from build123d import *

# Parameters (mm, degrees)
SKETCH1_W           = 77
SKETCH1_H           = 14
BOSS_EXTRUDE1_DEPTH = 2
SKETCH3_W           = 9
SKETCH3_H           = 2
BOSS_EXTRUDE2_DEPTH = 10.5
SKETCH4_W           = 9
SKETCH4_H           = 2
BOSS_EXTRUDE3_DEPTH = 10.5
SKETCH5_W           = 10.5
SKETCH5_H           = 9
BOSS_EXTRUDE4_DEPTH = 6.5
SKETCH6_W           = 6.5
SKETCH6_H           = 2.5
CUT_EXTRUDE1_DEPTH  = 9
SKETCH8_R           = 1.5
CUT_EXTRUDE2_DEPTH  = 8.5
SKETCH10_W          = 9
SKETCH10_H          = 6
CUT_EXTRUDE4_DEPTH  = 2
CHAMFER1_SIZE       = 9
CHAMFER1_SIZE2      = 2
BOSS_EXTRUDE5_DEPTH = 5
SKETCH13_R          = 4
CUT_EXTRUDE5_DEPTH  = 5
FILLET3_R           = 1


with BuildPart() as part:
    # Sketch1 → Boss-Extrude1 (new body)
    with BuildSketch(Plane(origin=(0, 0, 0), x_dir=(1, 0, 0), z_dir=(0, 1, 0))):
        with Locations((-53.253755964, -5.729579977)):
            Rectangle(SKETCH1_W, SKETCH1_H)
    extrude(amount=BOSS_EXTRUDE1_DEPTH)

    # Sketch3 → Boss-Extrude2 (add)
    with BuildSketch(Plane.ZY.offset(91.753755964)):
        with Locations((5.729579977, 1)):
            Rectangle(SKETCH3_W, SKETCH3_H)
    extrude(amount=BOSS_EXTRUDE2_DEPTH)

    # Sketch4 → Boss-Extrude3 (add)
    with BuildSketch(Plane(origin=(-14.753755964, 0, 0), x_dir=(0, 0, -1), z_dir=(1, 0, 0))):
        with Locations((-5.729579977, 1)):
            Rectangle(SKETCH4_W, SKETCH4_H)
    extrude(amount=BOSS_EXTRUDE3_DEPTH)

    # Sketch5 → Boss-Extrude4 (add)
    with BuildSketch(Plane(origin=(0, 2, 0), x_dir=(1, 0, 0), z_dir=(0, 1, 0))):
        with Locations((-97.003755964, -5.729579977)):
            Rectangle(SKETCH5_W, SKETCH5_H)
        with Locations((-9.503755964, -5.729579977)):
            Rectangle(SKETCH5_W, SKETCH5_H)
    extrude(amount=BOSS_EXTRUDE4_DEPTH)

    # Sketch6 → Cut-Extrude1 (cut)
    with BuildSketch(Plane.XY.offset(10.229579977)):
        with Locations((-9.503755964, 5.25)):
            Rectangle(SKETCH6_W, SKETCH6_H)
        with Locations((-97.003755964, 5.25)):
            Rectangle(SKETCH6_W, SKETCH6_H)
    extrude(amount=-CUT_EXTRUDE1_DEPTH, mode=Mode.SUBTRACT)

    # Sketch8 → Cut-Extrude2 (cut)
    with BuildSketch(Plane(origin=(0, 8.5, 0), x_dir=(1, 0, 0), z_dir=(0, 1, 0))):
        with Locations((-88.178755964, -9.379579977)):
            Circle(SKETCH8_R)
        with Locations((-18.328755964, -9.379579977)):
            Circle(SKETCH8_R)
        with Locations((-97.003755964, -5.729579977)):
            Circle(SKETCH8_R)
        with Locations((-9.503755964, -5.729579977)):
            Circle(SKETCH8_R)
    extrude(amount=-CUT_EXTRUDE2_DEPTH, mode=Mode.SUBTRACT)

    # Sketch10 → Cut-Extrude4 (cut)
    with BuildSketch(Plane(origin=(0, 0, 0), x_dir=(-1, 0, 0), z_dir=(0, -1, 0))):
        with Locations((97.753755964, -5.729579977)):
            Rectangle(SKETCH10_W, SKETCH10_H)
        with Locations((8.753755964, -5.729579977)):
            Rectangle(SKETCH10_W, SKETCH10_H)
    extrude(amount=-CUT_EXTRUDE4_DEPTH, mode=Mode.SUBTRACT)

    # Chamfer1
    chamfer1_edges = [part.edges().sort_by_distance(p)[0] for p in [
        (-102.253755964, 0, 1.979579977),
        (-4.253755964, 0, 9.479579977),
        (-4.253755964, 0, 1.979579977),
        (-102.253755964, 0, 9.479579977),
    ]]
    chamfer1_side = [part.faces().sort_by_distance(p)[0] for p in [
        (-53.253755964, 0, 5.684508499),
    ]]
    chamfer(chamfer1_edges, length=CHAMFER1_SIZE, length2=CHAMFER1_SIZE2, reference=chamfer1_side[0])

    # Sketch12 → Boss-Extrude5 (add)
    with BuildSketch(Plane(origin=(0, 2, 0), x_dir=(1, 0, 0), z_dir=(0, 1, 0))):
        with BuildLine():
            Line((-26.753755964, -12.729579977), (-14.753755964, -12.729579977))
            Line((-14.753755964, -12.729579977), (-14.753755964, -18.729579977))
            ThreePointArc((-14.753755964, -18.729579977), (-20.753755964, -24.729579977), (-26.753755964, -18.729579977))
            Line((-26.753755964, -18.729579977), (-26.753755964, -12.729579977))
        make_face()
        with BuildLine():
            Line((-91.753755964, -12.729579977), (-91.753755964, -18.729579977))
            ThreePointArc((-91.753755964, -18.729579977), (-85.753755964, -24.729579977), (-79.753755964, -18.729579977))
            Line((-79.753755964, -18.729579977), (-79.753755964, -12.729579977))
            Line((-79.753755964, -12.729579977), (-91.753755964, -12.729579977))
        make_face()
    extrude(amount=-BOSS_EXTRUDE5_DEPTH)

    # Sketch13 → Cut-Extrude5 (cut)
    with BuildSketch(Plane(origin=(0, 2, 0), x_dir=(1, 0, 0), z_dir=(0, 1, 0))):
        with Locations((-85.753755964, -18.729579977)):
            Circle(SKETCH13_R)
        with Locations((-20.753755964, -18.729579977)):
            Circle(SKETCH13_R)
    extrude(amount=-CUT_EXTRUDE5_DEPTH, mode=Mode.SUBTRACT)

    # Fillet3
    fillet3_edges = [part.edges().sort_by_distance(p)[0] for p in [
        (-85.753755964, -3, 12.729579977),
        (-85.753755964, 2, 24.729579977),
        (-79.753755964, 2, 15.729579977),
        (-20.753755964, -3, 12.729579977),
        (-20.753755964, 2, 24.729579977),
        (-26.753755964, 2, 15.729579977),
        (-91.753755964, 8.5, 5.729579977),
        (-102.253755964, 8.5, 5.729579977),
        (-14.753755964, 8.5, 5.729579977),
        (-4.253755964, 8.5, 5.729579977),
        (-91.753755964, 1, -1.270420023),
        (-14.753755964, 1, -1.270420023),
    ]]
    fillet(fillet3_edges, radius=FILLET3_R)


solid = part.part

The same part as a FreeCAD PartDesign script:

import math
import FreeCAD as App
import Part
import Sketcher
from FreeCAD import Vector
Q = App.Units.Quantity


def edges_at(feature, points):
    """Names of the edges that pass closest to the given points."""
    edges = feature.Shape.Edges
    near = lambda p: min(range(len(edges)), key=lambda i: edges[i].distToShape(Part.Vertex(*p))[0])
    return sorted({f"Edge{near(p) + 1}" for p in points})

doc = App.newDocument("Part")
body = doc.addObject("PartDesign::Body", "Body")

sketch1 = body.newObject("Sketcher::SketchObject", "Sketch")
sketch1.AttachmentSupport = (doc.getObject("XZ_Plane"), [""])
sketch1.MapMode = "FlatFace"
sketch1.addGeometry([
    Part.LineSegment(Vector(-92, -1, 0), Vector(-92, 13, 0)),
    Part.LineSegment(Vector(-92, 13, 0), Vector(-15, 13, 0)),
    Part.LineSegment(Vector(-15, 13, 0), Vector(-15, -1, 0)),
    Part.LineSegment(Vector(-15, -1, 0), Vector(-92, -1, 0)),
], False)
sketch1.addConstraint([
    Sketcher.Constraint("Coincident", 0, 2, 1, 1),
    Sketcher.Constraint("Coincident", 1, 2, 2, 1),
    Sketcher.Constraint("Coincident", 2, 2, 3, 1),
    Sketcher.Constraint("Coincident", 3, 2, 0, 1),
    Sketcher.Constraint("Vertical", 0),
    Sketcher.Constraint("Horizontal", 1),
    Sketcher.Constraint("Vertical", 2),
    Sketcher.Constraint("Horizontal", 3),
    Sketcher.Constraint("DistanceX", 1, 1, 1, 2, Q("77 mm")),
    Sketcher.Constraint("DistanceY", 0, 1, 0, 2, Q("14 mm")),
    Sketcher.Constraint("DistanceY", -1, 1, 0, 2, Q("12.72958 mm")),
    Sketcher.Constraint("DistanceX", 0, 2, -1, 1, Q("91.753756 mm")),
])
pad1 = body.newObject("PartDesign::Pad", "Pad")
pad1.Profile = sketch1
pad1.Length = 2
pad1.Reversed = True

sketch2 = body.newObject("Sketcher::SketchObject", "Sketch001")
sketch2.AttachmentSupport = (doc.getObject("YZ_Plane"), [""])
sketch2.MapMode = "FlatFace"
sketch2.AttachmentOffset = App.Placement(Vector(0, 0, -91.753756), App.Rotation())
sketch2.addGeometry([
    Part.LineSegment(Vector(2, 1.2, 0), Vector(0, 1.2, 0)),
    Part.LineSegment(Vector(0, 1.2, 0), Vector(0, 10.2, 0)),
    Part.LineSegment(Vector(0, 10.2, 0), Vector(2, 10.2, 0)),
    Part.LineSegment(Vector(2, 10.2, 0), Vector(2, 1.2, 0)),
], False)
sketch2.addConstraint([
    Sketcher.Constraint("Coincident", 0, 2, 1, 1),
    Sketcher.Constraint("Coincident", 1, 2, 2, 1),
    Sketcher.Constraint("Coincident", 2, 2, 3, 1),
    Sketcher.Constraint("Coincident", 3, 2, 0, 1),
    Sketcher.Constraint("Horizontal", 0),
    Sketcher.Constraint("Vertical", 1),
    Sketcher.Constraint("Horizontal", 2),
    Sketcher.Constraint("Vertical", 3),
    Sketcher.Constraint("PointOnObject", 0, 2, -2),
    Sketcher.Constraint("DistanceX", 0, 2, 0, 1, Q("2 mm")),
    Sketcher.Constraint("DistanceY", 1, 1, 1, 2, Q("9 mm")),
    Sketcher.Constraint("DistanceY", -1, 1, 0, 2, Q("1.22958 mm")),
])
pad2 = body.newObject("PartDesign::Pad", "Pad001")
pad2.Profile = sketch2
pad2.Length = 10.5
pad2.Reversed = True

sketch3 = body.newObject("Sketcher::SketchObject", "Sketch002")
sketch3.AttachmentSupport = (doc.getObject("YZ_Plane"), [""])
sketch3.MapMode = "FlatFace"
sketch3.AttachmentOffset = App.Placement(Vector(0, 0, -14.753756), App.Rotation())
sketch3.addGeometry([
    Part.LineSegment(Vector(2, 10.2, 0), Vector(0, 10.2, 0)),
    Part.LineSegment(Vector(0, 10.2, 0), Vector(0, 1.2, 0)),
    Part.LineSegment(Vector(0, 1.2, 0), Vector(2, 1.2, 0)),
    Part.LineSegment(Vector(2, 1.2, 0), Vector(2, 10.2, 0)),
], False)
sketch3.addConstraint([
    Sketcher.Constraint("Coincident", 0, 2, 1, 1),
    Sketcher.Constraint("Coincident", 1, 2, 2, 1),
    Sketcher.Constraint("Coincident", 2, 2, 3, 1),
    Sketcher.Constraint("Coincident", 3, 2, 0, 1),
    Sketcher.Constraint("Horizontal", 0),
    Sketcher.Constraint("Vertical", 1),
    Sketcher.Constraint("Horizontal", 2),
    Sketcher.Constraint("Vertical", 3),
    Sketcher.Constraint("PointOnObject", 0, 2, -2),
    Sketcher.Constraint("DistanceX", 0, 2, 0, 1, Q("2 mm")),
    Sketcher.Constraint("DistanceY", 1, 2, 1, 1, Q("9 mm")),
    Sketcher.Constraint("DistanceY", -1, 1, 0, 2, Q("10.22958 mm")),
])
pad3 = body.newObject("PartDesign::Pad", "Pad002")
pad3.Profile = sketch3
pad3.Length = 10.5

sketch4 = body.newObject("Sketcher::SketchObject", "Sketch003")
sketch4.AttachmentSupport = (doc.getObject("XZ_Plane"), [""])
sketch4.MapMode = "FlatFace"
sketch4.AttachmentOffset = App.Placement(Vector(0, 0, -2), App.Rotation())
sketch4.addGeometry([
    Part.LineSegment(Vector(-102, 1, 0), Vector(-102, 10, 0)),
    Part.LineSegment(Vector(-102, 10, 0), Vector(-92, 10, 0)),
    Part.LineSegment(Vector(-92, 10, 0), Vector(-92, 1, 0)),
    Part.LineSegment(Vector(-92, 1, 0), Vector(-102, 1, 0)),
    Part.LineSegment(Vector(-15, 1, 0), Vector(-15, 10, 0)),
    Part.LineSegment(Vector(-15, 10, 0), Vector(-4, 10, 0)),
    Part.LineSegment(Vector(-4, 10, 0), Vector(-4, 1, 0)),
    Part.LineSegment(Vector(-4, 1, 0), Vector(-15, 1, 0)),
], False)
sketch4.addConstraint([
    Sketcher.Constraint("Coincident", 0, 2, 1, 1),
    Sketcher.Constraint("Coincident", 1, 2, 2, 1),
    Sketcher.Constraint("Coincident", 2, 2, 3, 1),
    Sketcher.Constraint("Coincident", 3, 2, 0, 1),
    Sketcher.Constraint("Coincident", 4, 2, 5, 1),
    Sketcher.Constraint("Coincident", 5, 2, 6, 1),
    Sketcher.Constraint("Coincident", 6, 2, 7, 1),
    Sketcher.Constraint("Coincident", 7, 2, 4, 1),
    Sketcher.Constraint("Vertical", 0),
    Sketcher.Constraint("Horizontal", 1),
    Sketcher.Constraint("Vertical", 2),
    Sketcher.Constraint("Horizontal", 3),
    Sketcher.Constraint("Vertical", 4),
    Sketcher.Constraint("Horizontal", 5),
    Sketcher.Constraint("Vertical", 6),
    Sketcher.Constraint("Horizontal", 7),
    Sketcher.Constraint("Horizontal", 1, 2, 4, 2),
    Sketcher.Constraint("Horizontal", 3, 2, 6, 2),
    Sketcher.Constraint("Equal", 3, 5),
    Sketcher.Constraint("DistanceY", 0, 1, 0, 2, Q("9 mm")),
    Sketcher.Constraint("DistanceX", 1, 1, 1, 2, Q("10.5 mm")),
    Sketcher.Constraint("DistanceX", 1, 2, 4, 2, Q("77 mm")),
    Sketcher.Constraint("DistanceY", -1, 1, 0, 2, Q("10.22958 mm")),
    Sketcher.Constraint("DistanceX", 0, 2, -1, 1, Q("102.253756 mm")),
])
pad4 = body.newObject("PartDesign::Pad", "Pad003")
pad4.Profile = sketch4
pad4.Length = 6.5
pad4.Reversed = True

sketch5 = body.newObject("Sketcher::SketchObject", "Sketch004")
sketch5.AttachmentSupport = (doc.getObject("XY_Plane"), [""])
sketch5.MapMode = "FlatFace"
sketch5.AttachmentOffset = App.Placement(Vector(0, 0, 10.22958), App.Rotation())
sketch5.addGeometry([
    Part.LineSegment(Vector(-12.8, 6.5, 0), Vector(-12.8, 4, 0)),
    Part.LineSegment(Vector(-12.8, 4, 0), Vector(-6.3, 4, 0)),
    Part.LineSegment(Vector(-6.3, 4, 0), Vector(-6.3, 6.5, 0)),
    Part.LineSegment(Vector(-6.3, 6.5, 0), Vector(-12.8, 6.5, 0)),
    Part.LineSegment(Vector(-100.3, 6.5, 0), Vector(-100.3, 4, 0)),
    Part.LineSegment(Vector(-100.3, 4, 0), Vector(-93.8, 4, 0)),
    Part.LineSegment(Vector(-93.8, 4, 0), Vector(-93.8, 6.5, 0)),
    Part.LineSegment(Vector(-93.8, 6.5, 0), Vector(-100.3, 6.5, 0)),
], False)
sketch5.addConstraint([
    Sketcher.Constraint("Coincident", 0, 2, 1, 1),
    Sketcher.Constraint("Coincident", 1, 2, 2, 1),
    Sketcher.Constraint("Coincident", 2, 2, 3, 1),
    Sketcher.Constraint("Coincident", 3, 2, 0, 1),
    Sketcher.Constraint("Coincident", 4, 2, 5, 1),
    Sketcher.Constraint("Coincident", 5, 2, 6, 1),
    Sketcher.Constraint("Coincident", 6, 2, 7, 1),
    Sketcher.Constraint("Coincident", 7, 2, 4, 1),
    Sketcher.Constraint("Vertical", 0),
    Sketcher.Constraint("Horizontal", 1),
    Sketcher.Constraint("Vertical", 2),
    Sketcher.Constraint("Horizontal", 3),
    Sketcher.Constraint("Vertical", 4),
    Sketcher.Constraint("Horizontal", 5),
    Sketcher.Constraint("Vertical", 6),
    Sketcher.Constraint("Horizontal", 7),
    Sketcher.Constraint("Horizontal", 1, 2, 4, 2),
    Sketcher.Constraint("Horizontal", 3, 2, 6, 2),
    Sketcher.Constraint("Equal", 3, 5),
    Sketcher.Constraint("DistanceX", 1, 1, 1, 2, Q("6.5 mm")),
    Sketcher.Constraint("DistanceY", 0, 2, 0, 1, Q("2.5 mm")),
    Sketcher.Constraint("DistanceY", -1, 1, 0, 2, Q("4 mm")),
    Sketcher.Constraint("DistanceX", 4, 2, 1, 2, Q("94 mm")),
    Sketcher.Constraint("DistanceX", 0, 2, -1, 1, Q("12.753756 mm")),
])
pocket1 = body.newObject("PartDesign::Pocket", "Pocket")
pocket1.Profile = sketch5
pocket1.Length = 9

sketch6 = body.newObject("Sketcher::SketchObject", "Sketch005")
sketch6.AttachmentSupport = (doc.getObject("XZ_Plane"), [""])
sketch6.MapMode = "FlatFace"
sketch6.AttachmentOffset = App.Placement(Vector(0, 0, -8.5), App.Rotation())
sketch6.addGeometry([
    Part.Circle(Vector(-88.2, 9.4, 0), Vector(0, 0, 1), 1.5),
    Part.Circle(Vector(-18.3, 9.4, 0), Vector(0, 0, 1), 1.5),
    Part.Circle(Vector(-97, 5.7, 0), Vector(0, 0, 1), 1.5),
    Part.Circle(Vector(-9.5, 5.7, 0), Vector(0, 0, 1), 1.5),
], False)
sketch6.addConstraint([
    Sketcher.Constraint("Equal", 0, 1),
    Sketcher.Constraint("Equal", 1, 2),
    Sketcher.Constraint("Equal", 2, 3),
    Sketcher.Constraint("Horizontal", 0, 3, 1, 3),
    Sketcher.Constraint("Horizontal", 2, 3, 3, 3),
    Sketcher.Constraint("Diameter", 0, Q("3 mm")),
    Sketcher.Constraint("DistanceX", 2, 3, 3, 3, Q("87.5 mm")),
    Sketcher.Constraint("DistanceX", 0, 3, 1, 3, Q("69.85 mm")),
    Sketcher.Constraint("DistanceY", 2, 3, 0, 3, Q("3.65 mm")),
    Sketcher.Constraint("DistanceX", 2, 3, 0, 3, Q("8.825 mm")),
    Sketcher.Constraint("DistanceY", -1, 1, 0, 3, Q("9.37958 mm")),
    Sketcher.Constraint("DistanceX", 0, 3, -1, 1, Q("88.178756 mm")),
])
pocket2 = body.newObject("PartDesign::Pocket", "Pocket001")
pocket2.Profile = sketch6
pocket2.Length = 8.5
pocket2.Reversed = True

sketch7 = body.newObject("Sketcher::SketchObject", "Sketch006")
sketch7.AttachmentSupport = (doc.getObject("XZ_Plane"), [""])
sketch7.MapMode = "FlatFace"
sketch7.addGeometry([
    Part.LineSegment(Vector(-93, 3, 0), Vector(-93, 9, 0)),
    Part.LineSegment(Vector(-93, 9, 0), Vector(-102, 9, 0)),
    Part.LineSegment(Vector(-102, 9, 0), Vector(-102, 3, 0)),
    Part.LineSegment(Vector(-102, 3, 0), Vector(-93, 3, 0)),
    Part.LineSegment(Vector(-4, 3, 0), Vector(-4, 9, 0)),
    Part.LineSegment(Vector(-4, 9, 0), Vector(-13, 9, 0)),
    Part.LineSegment(Vector(-13, 9, 0), Vector(-13, 3, 0)),
    Part.LineSegment(Vector(-13, 3, 0), Vector(-4, 3, 0)),
], False)
sketch7.addConstraint([
    Sketcher.Constraint("Coincident", 0, 2, 1, 1),
    Sketcher.Constraint("Coincident", 1, 2, 2, 1),
    Sketcher.Constraint("Coincident", 2, 2, 3, 1),
    Sketcher.Constraint("Coincident", 3, 2, 0, 1),
    Sketcher.Constraint("Coincident", 4, 2, 5, 1),
    Sketcher.Constraint("Coincident", 5, 2, 6, 1),
    Sketcher.Constraint("Coincident", 6, 2, 7, 1),
    Sketcher.Constraint("Coincident", 7, 2, 4, 1),
    Sketcher.Constraint("Vertical", 0),
    Sketcher.Constraint("Horizontal", 1),
    Sketcher.Constraint("Vertical", 2),
    Sketcher.Constraint("Horizontal", 3),
    Sketcher.Constraint("Vertical", 4),
    Sketcher.Constraint("Horizontal", 5),
    Sketcher.Constraint("Vertical", 6),
    Sketcher.Constraint("Horizontal", 7),
    Sketcher.Constraint("Horizontal", 1, 2, 4, 2),
    Sketcher.Constraint("Horizontal", 3, 2, 6, 2),
    Sketcher.Constraint("Equal", 3, 5),
    Sketcher.Constraint("DistanceX", 1, 2, 1, 1, Q("9 mm")),
    Sketcher.Constraint("DistanceY", 0, 1, 0, 2, Q("6 mm")),
    Sketcher.Constraint("DistanceX", 0, 2, 4, 2, Q("89 mm")),
    Sketcher.Constraint("DistanceY", -1, 1, 0, 2, Q("8.72958 mm")),
    Sketcher.Constraint("DistanceX", 0, 2, -1, 1, Q("93.253756 mm")),
])
pocket3 = body.newObject("PartDesign::Pocket", "Pocket002")
pocket3.Profile = sketch7
pocket3.Length = 2
doc.recompute()

chamfer = body.newObject("PartDesign::Chamfer", "Chamfer")
chamfer.Base = (pocket3, edges_at(pocket3, [
    (-102.254, 0, 1.98),
    (-4.254, 0, 9.48),
    (-4.254, 0, 1.98),
    (-102.254, 0, 9.48),
]))
chamfer.ChamferType = "Two distances"
chamfer.Size = 9
chamfer.Size2 = 2

sketch8 = body.newObject("Sketcher::SketchObject", "Sketch007")
sketch8.AttachmentSupport = (doc.getObject("XZ_Plane"), [""])
sketch8.MapMode = "FlatFace"
sketch8.AttachmentOffset = App.Placement(Vector(0, 0, -2), App.Rotation())
sketch8.addGeometry([
    Part.LineSegment(Vector(-15, 13, 0), Vector(-27, 13, 0)),
    Part.LineSegment(Vector(-27, 13, 0), Vector(-27, 19, 0)),
    Part.ArcOfCircle(Part.Circle(Vector(-21, 19, 0), Vector(0, 0, 1), 6), math.radians(0), math.radians(180)),
    Part.LineSegment(Vector(-15, 19, 0), Vector(-15, 13, 0)),
    Part.LineSegment(Vector(-92, 13, 0), Vector(-92, 19, 0)),
    Part.ArcOfCircle(Part.Circle(Vector(-86, 19, 0), Vector(0, 0, 1), 6), math.radians(0), math.radians(180)),
    Part.LineSegment(Vector(-80, 19, 0), Vector(-80, 13, 0)),
    Part.LineSegment(Vector(-80, 13, 0), Vector(-92, 13, 0)),
], False)
sketch8.addConstraint([
    Sketcher.Constraint("Coincident", 0, 2, 1, 1),
    Sketcher.Constraint("Tangent", 1, 2, 2, 2),
    Sketcher.Constraint("Tangent", 2, 1, 3, 1),
    Sketcher.Constraint("Coincident", 3, 2, 0, 1),
    Sketcher.Constraint("Tangent", 4, 2, 5, 2),
    Sketcher.Constraint("Tangent", 5, 1, 6, 1),
    Sketcher.Constraint("Coincident", 6, 2, 7, 1),
    Sketcher.Constraint("Coincident", 7, 2, 4, 1),
    Sketcher.Constraint("Horizontal", 0),
    Sketcher.Constraint("Vertical", 1),
    Sketcher.Constraint("Vertical", 3),
    Sketcher.Constraint("Vertical", 4),
    Sketcher.Constraint("Vertical", 6),
    Sketcher.Constraint("Horizontal", 7),
    Sketcher.Constraint("Equal", 2, 5),
    Sketcher.Constraint("Horizontal", 2, 3, 5, 3),
    Sketcher.Constraint("Horizontal", 3, 2, 6, 2),
    Sketcher.Constraint("Radius", 2, Q("6 mm")),
    Sketcher.Constraint("DistanceY", 1, 1, 1, 2, Q("6 mm")),
    Sketcher.Constraint("DistanceX", 5, 3, 2, 3, Q("65 mm")),
    Sketcher.Constraint("DistanceY", -1, 1, 2, 3, Q("18.72958 mm")),
    Sketcher.Constraint("DistanceX", 2, 3, -1, 1, Q("20.753756 mm")),
])
pad5 = body.newObject("PartDesign::Pad", "Pad004")
pad5.Profile = sketch8
pad5.Length = 5

sketch9 = body.newObject("Sketcher::SketchObject", "Sketch008")
sketch9.AttachmentSupport = (doc.getObject("XZ_Plane"), [""])
sketch9.MapMode = "FlatFace"
sketch9.AttachmentOffset = App.Placement(Vector(0, 0, -2), App.Rotation())
sketch9.addGeometry([
    Part.Circle(Vector(-85.8, 18.7, 0), Vector(0, 0, 1), 4),
    Part.Circle(Vector(-20.8, 18.7, 0), Vector(0, 0, 1), 4),
], False)
sketch9.addConstraint([
    Sketcher.Constraint("Equal", 0, 1),
    Sketcher.Constraint("Horizontal", 0, 3, 1, 3),
    Sketcher.Constraint("Diameter", 0, Q("8 mm")),
    Sketcher.Constraint("DistanceX", 0, 3, 1, 3, Q("65 mm")),
    Sketcher.Constraint("DistanceY", -1, 1, 0, 3, Q("18.72958 mm")),
    Sketcher.Constraint("DistanceX", 0, 3, -1, 1, Q("85.753756 mm")),
])
pocket4 = body.newObject("PartDesign::Pocket", "Pocket003")
pocket4.Profile = sketch9
pocket4.Length = 5
pocket4.Reversed = True
doc.recompute()

fillet = body.newObject("PartDesign::Fillet", "Fillet")
fillet.Base = (pocket4, edges_at(pocket4, [
    (-85.754, -3, 12.73),
    (-85.754, 2, 24.73),
    (-79.754, 2, 15.73),
    (-20.754, -3, 12.73),
    (-20.754, 2, 24.73),
    (-26.754, 2, 15.73),
    (-91.754, 8.5, 5.73),
    (-102.254, 8.5, 5.73),
    (-14.754, 8.5, 5.73),
    (-4.254, 8.5, 5.73),
    (-91.754, 1, -1.27),
    (-14.754, 1, -1.27),
]))
fillet.Radius = 1

doc.recompute()
